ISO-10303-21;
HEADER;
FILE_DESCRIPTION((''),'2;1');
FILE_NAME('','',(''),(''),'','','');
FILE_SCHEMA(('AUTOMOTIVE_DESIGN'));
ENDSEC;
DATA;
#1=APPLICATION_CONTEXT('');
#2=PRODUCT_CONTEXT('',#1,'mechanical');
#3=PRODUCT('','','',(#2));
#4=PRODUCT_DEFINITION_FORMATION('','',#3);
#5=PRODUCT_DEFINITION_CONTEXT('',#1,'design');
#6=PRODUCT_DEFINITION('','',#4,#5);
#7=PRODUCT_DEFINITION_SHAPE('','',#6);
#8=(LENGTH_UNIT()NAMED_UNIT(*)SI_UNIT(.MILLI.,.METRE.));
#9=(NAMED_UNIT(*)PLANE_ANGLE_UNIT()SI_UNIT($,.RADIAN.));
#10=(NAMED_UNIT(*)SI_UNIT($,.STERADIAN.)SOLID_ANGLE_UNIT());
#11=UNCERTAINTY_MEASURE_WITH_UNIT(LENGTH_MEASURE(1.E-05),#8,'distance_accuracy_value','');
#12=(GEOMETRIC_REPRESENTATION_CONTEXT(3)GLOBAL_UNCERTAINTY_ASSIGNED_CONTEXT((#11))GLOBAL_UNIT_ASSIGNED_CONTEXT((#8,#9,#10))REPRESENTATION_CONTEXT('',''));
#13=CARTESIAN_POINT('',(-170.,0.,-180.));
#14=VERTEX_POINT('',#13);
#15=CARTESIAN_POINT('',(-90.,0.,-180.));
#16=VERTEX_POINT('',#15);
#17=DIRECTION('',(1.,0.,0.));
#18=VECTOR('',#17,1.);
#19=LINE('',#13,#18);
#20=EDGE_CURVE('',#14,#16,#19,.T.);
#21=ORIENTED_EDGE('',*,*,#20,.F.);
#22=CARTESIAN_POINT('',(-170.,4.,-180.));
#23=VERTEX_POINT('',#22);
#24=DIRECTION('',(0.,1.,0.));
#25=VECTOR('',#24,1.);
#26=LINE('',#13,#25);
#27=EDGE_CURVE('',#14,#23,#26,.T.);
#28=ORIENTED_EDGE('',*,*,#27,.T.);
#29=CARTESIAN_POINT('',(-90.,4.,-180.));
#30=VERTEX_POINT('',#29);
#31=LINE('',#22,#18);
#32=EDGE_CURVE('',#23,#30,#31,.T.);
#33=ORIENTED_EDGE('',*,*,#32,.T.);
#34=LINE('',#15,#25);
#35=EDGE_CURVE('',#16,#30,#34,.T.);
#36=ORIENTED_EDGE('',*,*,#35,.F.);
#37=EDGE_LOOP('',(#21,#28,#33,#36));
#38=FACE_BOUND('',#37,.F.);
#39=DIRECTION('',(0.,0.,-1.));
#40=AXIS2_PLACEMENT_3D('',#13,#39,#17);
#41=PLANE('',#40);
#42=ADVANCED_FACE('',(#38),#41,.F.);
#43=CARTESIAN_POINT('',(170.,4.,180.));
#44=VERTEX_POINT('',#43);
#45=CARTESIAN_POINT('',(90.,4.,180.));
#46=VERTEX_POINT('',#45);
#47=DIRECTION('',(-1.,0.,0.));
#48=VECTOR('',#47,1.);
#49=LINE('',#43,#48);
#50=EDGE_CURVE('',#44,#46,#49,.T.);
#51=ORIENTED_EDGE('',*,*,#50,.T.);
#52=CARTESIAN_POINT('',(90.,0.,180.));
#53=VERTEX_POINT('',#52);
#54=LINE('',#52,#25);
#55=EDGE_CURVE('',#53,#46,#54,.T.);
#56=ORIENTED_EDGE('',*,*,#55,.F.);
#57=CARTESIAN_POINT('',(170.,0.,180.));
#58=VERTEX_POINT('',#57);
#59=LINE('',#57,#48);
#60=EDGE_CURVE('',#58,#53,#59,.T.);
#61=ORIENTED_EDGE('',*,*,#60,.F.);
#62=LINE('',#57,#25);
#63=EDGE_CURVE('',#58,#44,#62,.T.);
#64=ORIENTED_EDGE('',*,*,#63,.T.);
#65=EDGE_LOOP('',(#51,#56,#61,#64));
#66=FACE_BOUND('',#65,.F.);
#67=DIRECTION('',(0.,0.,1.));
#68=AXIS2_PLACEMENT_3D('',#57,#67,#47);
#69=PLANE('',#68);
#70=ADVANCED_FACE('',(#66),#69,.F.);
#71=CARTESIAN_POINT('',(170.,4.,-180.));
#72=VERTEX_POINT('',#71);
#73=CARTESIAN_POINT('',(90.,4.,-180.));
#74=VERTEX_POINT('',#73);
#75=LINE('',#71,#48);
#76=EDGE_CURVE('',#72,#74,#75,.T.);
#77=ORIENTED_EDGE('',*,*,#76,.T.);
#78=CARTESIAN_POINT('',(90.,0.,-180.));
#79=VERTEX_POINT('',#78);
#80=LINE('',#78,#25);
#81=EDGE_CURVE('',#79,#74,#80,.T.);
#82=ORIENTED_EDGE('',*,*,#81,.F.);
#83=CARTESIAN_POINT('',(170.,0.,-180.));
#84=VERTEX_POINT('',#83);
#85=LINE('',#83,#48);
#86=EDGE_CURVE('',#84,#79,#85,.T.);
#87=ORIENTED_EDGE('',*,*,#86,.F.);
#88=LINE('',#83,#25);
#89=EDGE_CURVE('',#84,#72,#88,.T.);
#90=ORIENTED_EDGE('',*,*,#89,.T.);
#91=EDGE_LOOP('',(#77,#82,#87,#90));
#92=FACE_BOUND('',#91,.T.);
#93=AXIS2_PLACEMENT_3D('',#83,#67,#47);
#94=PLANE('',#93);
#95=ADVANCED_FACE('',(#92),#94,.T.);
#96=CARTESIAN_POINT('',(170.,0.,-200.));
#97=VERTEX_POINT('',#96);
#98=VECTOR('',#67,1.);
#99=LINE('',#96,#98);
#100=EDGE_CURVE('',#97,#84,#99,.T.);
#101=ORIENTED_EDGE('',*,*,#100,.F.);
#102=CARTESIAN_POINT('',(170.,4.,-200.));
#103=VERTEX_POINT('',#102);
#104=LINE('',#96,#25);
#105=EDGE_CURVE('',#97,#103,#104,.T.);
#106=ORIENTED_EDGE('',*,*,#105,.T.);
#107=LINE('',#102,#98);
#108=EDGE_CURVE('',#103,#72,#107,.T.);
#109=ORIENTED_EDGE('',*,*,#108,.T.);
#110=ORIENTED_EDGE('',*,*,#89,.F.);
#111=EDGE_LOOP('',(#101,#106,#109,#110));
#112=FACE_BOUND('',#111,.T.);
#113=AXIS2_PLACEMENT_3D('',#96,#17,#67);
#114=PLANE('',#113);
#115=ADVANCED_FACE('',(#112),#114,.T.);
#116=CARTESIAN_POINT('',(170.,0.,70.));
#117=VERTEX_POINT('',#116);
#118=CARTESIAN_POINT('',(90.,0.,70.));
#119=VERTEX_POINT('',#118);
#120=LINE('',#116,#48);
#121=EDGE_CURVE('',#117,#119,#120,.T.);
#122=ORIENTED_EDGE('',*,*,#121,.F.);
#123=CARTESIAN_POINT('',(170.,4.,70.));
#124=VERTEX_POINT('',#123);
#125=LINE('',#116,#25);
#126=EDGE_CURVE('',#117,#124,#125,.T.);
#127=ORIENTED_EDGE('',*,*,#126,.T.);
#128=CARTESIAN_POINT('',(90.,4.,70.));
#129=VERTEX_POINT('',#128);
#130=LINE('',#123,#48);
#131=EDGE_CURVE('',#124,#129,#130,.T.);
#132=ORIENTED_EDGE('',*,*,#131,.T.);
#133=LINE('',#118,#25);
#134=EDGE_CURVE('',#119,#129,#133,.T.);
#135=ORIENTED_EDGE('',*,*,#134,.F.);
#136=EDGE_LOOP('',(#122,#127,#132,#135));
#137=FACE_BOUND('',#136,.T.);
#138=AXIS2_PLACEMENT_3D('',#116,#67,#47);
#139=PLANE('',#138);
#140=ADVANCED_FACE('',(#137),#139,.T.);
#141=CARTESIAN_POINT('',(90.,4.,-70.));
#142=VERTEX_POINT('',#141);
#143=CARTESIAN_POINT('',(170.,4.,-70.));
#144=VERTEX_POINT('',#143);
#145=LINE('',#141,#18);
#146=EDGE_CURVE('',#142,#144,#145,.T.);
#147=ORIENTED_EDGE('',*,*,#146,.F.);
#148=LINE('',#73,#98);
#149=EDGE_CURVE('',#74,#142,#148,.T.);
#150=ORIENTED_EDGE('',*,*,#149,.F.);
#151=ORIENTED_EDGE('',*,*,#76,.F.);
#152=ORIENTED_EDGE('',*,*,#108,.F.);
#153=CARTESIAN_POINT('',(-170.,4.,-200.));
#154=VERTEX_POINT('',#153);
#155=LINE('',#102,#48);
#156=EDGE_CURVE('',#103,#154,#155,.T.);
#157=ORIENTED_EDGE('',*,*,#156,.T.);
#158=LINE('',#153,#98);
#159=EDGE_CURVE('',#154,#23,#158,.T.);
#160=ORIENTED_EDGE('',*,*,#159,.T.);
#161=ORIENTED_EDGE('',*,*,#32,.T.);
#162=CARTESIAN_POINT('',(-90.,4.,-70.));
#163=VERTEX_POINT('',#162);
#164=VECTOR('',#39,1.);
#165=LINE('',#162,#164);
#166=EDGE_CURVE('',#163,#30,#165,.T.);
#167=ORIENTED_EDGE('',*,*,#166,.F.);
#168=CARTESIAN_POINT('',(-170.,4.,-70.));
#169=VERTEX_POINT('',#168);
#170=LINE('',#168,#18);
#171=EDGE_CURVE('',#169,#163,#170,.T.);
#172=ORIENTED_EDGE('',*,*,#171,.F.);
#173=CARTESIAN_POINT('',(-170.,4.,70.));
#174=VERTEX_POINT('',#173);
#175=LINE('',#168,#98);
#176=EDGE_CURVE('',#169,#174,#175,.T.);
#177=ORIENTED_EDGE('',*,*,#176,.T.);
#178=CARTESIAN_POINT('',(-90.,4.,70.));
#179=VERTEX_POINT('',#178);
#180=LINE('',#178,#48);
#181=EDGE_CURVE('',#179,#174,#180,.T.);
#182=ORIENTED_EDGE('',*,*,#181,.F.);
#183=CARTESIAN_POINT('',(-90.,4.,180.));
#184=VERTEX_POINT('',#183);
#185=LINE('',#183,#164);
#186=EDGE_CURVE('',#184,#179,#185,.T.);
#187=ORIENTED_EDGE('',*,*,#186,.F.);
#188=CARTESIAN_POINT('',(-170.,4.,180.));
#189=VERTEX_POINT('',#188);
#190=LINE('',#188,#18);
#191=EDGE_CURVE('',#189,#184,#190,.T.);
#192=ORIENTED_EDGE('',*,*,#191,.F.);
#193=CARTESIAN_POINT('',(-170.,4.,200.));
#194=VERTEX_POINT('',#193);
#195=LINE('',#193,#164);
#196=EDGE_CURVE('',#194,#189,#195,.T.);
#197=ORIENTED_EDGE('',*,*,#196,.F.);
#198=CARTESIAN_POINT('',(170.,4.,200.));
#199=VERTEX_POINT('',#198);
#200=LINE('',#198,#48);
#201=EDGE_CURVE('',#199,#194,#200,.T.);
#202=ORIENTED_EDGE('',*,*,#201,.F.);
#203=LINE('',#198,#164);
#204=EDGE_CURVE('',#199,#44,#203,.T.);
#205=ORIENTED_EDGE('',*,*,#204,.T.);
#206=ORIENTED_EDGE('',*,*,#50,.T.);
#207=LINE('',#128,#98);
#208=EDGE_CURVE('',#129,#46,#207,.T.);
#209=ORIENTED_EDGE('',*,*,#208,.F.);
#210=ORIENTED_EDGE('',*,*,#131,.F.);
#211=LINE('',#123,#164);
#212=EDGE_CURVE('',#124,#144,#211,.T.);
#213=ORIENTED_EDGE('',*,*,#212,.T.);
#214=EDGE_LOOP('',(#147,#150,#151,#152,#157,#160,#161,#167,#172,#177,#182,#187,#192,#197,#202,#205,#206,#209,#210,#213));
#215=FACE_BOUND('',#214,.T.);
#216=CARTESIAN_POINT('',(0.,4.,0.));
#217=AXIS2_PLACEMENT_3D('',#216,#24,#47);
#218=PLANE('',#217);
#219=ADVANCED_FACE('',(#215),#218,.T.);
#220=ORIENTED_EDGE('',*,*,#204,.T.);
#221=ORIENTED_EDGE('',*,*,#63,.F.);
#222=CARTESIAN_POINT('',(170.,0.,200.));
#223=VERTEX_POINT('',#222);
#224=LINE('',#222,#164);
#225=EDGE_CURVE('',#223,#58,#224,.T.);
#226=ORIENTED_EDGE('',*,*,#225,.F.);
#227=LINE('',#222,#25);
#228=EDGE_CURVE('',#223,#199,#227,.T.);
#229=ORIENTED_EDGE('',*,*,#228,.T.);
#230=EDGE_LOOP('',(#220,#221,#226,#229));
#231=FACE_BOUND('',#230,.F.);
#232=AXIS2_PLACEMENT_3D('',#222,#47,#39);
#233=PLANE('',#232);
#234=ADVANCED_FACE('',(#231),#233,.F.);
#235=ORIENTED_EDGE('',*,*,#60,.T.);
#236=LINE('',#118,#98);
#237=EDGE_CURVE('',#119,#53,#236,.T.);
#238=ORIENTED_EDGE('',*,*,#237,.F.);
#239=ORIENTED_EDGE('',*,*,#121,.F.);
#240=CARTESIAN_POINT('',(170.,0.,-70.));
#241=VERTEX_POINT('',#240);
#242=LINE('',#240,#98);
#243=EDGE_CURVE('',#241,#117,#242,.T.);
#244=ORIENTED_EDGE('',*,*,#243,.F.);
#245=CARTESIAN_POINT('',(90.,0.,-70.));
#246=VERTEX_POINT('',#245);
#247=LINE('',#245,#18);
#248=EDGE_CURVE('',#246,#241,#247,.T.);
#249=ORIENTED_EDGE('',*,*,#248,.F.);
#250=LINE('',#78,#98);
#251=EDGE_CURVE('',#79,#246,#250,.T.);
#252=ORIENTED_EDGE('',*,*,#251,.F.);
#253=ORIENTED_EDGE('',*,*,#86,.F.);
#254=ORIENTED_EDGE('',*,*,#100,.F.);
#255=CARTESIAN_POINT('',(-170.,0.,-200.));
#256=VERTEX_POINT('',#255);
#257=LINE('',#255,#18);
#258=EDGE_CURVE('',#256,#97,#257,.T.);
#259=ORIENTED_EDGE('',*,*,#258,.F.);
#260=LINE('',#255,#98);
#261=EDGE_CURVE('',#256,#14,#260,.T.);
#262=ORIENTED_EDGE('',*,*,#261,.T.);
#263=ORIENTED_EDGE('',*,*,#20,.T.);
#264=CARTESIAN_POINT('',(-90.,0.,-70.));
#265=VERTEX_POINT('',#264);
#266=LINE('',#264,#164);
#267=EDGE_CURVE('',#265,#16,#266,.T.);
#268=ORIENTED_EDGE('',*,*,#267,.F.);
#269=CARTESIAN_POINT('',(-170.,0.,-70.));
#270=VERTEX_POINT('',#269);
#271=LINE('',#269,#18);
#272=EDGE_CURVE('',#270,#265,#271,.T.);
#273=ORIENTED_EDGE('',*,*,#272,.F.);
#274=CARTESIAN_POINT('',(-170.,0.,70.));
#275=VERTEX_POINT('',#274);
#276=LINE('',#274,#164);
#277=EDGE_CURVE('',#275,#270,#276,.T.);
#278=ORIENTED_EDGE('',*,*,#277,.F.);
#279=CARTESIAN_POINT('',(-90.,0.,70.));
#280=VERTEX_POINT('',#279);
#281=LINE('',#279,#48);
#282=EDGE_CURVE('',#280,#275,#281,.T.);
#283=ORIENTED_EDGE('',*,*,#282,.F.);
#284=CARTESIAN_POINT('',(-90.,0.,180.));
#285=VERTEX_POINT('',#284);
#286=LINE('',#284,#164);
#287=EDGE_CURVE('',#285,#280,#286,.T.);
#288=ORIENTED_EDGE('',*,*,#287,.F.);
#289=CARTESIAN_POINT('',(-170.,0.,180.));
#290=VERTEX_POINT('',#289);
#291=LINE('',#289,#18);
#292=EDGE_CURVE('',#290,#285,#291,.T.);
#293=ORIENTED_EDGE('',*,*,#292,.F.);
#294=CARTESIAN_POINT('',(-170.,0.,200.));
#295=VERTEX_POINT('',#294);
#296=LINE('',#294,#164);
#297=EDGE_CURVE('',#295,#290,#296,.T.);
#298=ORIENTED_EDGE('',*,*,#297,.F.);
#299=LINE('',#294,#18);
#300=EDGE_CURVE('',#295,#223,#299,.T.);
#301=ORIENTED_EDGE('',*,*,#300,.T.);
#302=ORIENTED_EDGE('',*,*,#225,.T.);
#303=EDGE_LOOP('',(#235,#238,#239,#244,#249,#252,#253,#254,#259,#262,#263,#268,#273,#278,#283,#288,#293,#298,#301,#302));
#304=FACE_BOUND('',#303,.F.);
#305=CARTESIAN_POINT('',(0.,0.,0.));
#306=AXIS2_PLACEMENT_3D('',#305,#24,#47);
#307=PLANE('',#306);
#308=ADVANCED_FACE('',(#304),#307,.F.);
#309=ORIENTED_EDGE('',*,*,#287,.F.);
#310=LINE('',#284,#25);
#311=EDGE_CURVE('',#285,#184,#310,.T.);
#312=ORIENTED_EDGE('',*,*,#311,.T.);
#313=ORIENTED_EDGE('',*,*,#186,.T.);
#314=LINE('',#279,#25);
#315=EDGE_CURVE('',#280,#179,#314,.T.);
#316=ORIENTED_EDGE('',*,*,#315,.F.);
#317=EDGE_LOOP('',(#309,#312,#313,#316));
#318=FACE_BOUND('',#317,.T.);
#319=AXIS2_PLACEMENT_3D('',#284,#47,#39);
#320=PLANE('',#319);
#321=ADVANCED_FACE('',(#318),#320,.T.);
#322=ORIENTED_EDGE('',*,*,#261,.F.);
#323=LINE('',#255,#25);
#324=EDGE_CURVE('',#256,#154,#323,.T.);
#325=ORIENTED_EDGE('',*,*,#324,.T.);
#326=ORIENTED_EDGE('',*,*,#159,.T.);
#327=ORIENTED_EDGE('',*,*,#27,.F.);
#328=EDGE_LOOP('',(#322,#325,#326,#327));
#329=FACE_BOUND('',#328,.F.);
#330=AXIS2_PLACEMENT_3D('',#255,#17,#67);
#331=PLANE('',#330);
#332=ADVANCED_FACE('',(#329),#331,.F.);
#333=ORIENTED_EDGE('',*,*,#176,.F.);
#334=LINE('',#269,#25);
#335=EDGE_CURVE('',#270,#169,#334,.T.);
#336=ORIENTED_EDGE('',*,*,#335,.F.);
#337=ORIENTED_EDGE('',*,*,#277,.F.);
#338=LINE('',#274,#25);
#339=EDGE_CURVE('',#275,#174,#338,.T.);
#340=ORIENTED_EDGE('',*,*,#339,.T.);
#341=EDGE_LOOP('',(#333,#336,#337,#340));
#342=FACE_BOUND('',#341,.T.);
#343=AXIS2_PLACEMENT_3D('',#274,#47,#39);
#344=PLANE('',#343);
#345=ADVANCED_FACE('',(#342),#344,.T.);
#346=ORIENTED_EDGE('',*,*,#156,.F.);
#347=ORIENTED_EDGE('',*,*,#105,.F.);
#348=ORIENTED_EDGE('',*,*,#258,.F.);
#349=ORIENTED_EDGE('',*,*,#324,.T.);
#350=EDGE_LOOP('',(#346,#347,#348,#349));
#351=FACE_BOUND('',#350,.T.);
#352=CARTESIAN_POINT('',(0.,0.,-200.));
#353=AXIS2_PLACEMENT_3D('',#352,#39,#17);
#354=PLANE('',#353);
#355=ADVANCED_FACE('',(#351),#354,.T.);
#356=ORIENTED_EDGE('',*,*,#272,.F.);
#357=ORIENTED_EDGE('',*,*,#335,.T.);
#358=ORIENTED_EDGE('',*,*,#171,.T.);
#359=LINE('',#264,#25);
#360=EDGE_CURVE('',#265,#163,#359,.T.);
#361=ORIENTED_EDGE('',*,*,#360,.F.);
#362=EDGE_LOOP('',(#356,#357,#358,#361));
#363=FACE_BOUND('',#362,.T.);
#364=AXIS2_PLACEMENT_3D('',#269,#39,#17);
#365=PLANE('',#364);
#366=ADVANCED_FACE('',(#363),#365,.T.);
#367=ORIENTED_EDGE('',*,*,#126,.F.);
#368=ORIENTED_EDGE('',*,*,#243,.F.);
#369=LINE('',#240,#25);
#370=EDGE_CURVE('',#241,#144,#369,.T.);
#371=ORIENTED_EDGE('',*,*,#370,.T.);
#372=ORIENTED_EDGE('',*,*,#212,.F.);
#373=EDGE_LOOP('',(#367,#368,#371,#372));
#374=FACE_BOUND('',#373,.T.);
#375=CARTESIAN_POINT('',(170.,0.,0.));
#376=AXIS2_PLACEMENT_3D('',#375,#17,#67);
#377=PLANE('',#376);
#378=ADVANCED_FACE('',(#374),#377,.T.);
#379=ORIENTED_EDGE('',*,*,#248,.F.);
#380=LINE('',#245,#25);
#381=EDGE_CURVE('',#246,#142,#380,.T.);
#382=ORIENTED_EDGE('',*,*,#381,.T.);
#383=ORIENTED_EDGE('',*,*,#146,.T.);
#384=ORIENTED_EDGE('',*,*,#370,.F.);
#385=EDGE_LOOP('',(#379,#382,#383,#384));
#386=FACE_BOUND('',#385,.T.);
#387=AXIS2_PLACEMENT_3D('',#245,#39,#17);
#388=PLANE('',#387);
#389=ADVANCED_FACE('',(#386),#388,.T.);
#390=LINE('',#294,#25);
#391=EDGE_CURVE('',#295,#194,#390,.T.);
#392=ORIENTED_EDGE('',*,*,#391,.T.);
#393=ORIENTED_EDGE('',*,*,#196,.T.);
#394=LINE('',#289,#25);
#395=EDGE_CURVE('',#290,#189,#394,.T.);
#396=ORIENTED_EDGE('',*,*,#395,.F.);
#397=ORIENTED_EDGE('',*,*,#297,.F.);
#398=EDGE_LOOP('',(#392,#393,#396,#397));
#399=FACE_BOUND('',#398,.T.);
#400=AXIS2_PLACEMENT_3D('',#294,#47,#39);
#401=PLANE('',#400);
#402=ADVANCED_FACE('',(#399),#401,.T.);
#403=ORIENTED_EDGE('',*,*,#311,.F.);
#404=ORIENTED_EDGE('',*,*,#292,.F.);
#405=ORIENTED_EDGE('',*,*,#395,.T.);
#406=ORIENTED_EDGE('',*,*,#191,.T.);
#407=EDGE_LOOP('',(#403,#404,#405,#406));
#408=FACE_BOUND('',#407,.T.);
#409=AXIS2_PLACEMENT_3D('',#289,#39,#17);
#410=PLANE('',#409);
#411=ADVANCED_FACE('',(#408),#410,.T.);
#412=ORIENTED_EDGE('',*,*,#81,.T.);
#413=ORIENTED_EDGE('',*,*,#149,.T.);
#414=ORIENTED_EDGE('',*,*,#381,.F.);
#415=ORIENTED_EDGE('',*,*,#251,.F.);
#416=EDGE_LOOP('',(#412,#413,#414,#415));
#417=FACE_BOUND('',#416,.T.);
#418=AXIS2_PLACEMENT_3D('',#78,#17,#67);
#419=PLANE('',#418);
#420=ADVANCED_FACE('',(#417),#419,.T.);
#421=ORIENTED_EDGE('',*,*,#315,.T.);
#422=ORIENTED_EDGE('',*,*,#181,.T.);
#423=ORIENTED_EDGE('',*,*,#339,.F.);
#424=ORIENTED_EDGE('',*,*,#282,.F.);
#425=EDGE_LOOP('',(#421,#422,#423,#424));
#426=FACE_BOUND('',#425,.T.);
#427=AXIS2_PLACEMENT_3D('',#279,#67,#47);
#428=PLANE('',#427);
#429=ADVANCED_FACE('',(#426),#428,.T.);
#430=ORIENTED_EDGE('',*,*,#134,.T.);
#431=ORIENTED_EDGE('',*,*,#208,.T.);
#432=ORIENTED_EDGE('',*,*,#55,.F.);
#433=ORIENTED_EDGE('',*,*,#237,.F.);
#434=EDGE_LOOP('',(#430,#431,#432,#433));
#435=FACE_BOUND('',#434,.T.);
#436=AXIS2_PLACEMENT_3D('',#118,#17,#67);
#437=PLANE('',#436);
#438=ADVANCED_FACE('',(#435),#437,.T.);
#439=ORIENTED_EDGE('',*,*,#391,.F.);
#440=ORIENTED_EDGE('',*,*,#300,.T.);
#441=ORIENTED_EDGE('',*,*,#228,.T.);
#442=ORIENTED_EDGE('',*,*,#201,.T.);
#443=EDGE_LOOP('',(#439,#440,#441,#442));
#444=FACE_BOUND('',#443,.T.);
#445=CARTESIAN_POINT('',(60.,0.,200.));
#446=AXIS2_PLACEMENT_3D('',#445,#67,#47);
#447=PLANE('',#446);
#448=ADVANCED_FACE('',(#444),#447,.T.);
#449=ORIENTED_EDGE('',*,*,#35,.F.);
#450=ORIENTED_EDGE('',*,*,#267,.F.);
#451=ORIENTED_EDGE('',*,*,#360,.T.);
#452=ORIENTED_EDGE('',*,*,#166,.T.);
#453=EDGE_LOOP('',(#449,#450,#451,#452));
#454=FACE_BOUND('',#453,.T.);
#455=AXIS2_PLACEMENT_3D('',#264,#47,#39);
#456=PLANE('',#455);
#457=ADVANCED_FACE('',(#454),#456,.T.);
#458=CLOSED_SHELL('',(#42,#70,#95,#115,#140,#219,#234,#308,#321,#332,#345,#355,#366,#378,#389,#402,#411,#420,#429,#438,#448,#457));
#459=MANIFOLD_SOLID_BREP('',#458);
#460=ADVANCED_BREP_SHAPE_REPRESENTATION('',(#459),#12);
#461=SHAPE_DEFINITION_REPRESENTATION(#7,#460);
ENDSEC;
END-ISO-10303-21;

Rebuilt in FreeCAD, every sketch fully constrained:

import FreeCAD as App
import Part
import Sketcher

V = App.Vector


def add_polygon(sketch, points):
    """Adds a closed chain of lines whose ends are joined by coincident constraints."""
    first, n = sketch.GeometryCount, len(points)
    for a, b in zip(points, points[1:] + points[:1]):
        sketch.addGeometry(Part.LineSegment(App.Vector(*a, 0), App.Vector(*b, 0)), False)
    for i in range(n):
        sketch.addConstraint(Sketcher.Constraint("Coincident", first + i, 2, first + (i + 1) % n, 1))

doc = App.newDocument("Part")
body = doc.addObject("PartDesign::Body", "Body")

# Sketch on XZ plane
sketch1 = doc.addObject("Sketcher::SketchObject", "Sketch")
body.addObject(sketch1)
sketch1.AttachmentSupport = (doc.XZ_Plane, [""])
sketch1.MapMode = "FlatFace"
add_polygon(sketch1, [(170, 200), (170, 180), (90, 180), (90, 70), (170, 70), (170, -70), (90, -70), (90, -180), (170, -180), (170, -200), (-170, -200), (-170, -180), (-90, -180), (-90, -70), (-170, -70), (-170, 70), (-90, 70), (-90, 180), (-170, 180), (-170, 200)])  # lines 0-19
sketch1.addConstraint([
    Sketcher.Constraint("Vertical", 0),
    Sketcher.Constraint("Horizontal", 1),
    Sketcher.Constraint("Vertical", 2),
    Sketcher.Constraint("Horizontal", 3),
    Sketcher.Constraint("Vertical", 4),
    Sketcher.Constraint("Horizontal", 5),
    Sketcher.Constraint("Vertical", 6),
    Sketcher.Constraint("Horizontal", 7),
    Sketcher.Constraint("Vertical", 8),
    Sketcher.Constraint("Horizontal", 9),
    Sketcher.Constraint("Vertical", 10),
    Sketcher.Constraint("Horizontal", 11),
    Sketcher.Constraint("Vertical", 12),
    Sketcher.Constraint("Horizontal", 13),
    Sketcher.Constraint("Vertical", 14),
    Sketcher.Constraint("Horizontal", 15),
    Sketcher.Constraint("Vertical", 16),
    Sketcher.Constraint("Horizontal", 17),
    Sketcher.Constraint("Vertical", 18),
    Sketcher.Constraint("Horizontal", 19),
    Sketcher.Constraint("Symmetric", 0, 2, 10, 2, -1, 1),
    Sketcher.Constraint("Symmetric", 2, 2, 12, 2, -1, 1),
    Sketcher.Constraint("Symmetric", 4, 2, 14, 2, -1, 1),
    Sketcher.Constraint("Symmetric", 6, 2, 16, 2, -1, 1),
    Sketcher.Constraint("Symmetric", 8, 2, 18, 2, -1, 1),
    Sketcher.Constraint("Symmetric", 7, 2, 10, 2, -2),
    Sketcher.Constraint("Symmetric", 5, 2, 12, 2, -2),
    Sketcher.Constraint("Vertical", 0, 2, 3, 2),
    Sketcher.Constraint("DistanceX", 1, 2, 1, 1, 80.0),
    Sketcher.Constraint("DistanceY", 0, 2, 0, 1, 20.0),
    Sketcher.Constraint("DistanceY", 4, 2, 4, 1, 140.0),
    Sketcher.Constraint("DistanceY", -1, 1, 0, 2, 180.0),
    Sketcher.Constraint("DistanceX", 11, 2, 6, 2, 180.0),
])
pad1 = doc.addObject("PartDesign::Pad", "Pad")
body.addObject(pad1)
pad1.Profile = sketch1
pad1.Length = 4
pad1.Reversed = True

doc.recompute()
